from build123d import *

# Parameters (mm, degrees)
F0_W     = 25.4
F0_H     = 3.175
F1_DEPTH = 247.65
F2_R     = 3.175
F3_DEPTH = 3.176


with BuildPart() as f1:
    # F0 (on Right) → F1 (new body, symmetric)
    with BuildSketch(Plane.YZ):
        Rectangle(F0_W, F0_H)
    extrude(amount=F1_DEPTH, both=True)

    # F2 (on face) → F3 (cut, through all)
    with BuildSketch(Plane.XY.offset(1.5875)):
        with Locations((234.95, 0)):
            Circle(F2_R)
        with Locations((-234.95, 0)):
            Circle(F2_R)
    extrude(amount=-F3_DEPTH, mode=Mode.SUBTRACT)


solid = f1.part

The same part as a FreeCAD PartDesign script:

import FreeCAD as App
import Part
import Sketcher
from FreeCAD import Vector
Q = App.Units.Quantity

doc = App.newDocument("Part")
body = doc.addObject("PartDesign::Body", "Body")

# Sketch on YZ plane
sketch1 = doc.addObject("Sketcher::SketchObject", "Sketch")
body.addObject(sketch1)
sketch1.AttachmentSupport = (doc.YZ_Plane, [""])
sketch1.MapMode = "FlatFace"
sketch1.addGeometry([
    Part.LineSegment(Vector(-12.7, 1.6, 0), Vector(-12.7, -1.6, 0)),
    Part.LineSegment(Vector(-12.7, -1.6, 0), Vector(12.7, -1.6, 0)),
    Part.LineSegment(Vector(12.7, -1.6, 0), Vector(12.7, 1.6, 0)),
    Part.LineSegment(Vector(12.7, 1.6, 0), Vector(-12.7, 1.6, 0)),
], False)
sketch1.addConstraint([
    Sketcher.Constraint("Coincident", 0, 2, 1, 1),
    Sketcher.Constraint("Coincident", 1, 2, 2, 1),
    Sketcher.Constraint("Coincident", 2, 2, 3, 1),
    Sketcher.Constraint("Coincident", 3, 2, 0, 1),
    Sketcher.Constraint("Vertical", 0),
    Sketcher.Constraint("Horizontal", 1),
    Sketcher.Constraint("Vertical", 2),
    Sketcher.Constraint("Horizontal", 3),
    Sketcher.Constraint("Symmetric", 0, 2, 2, 2, -1, 1),
    Sketcher.Constraint("DistanceX", 1, 1, 1, 2, Q("1 in")),
    Sketcher.Constraint("DistanceY", 0, 2, 0, 1, Q("0.125 in")),
])
pad1 = doc.addObject("PartDesign::Pad", "Pad")
body.addObject(pad1)
pad1.Profile = sketch1
pad1.Length = Q("19.5 in")
pad1.Midplane = True

# Sketch on XY plane
sketch2 = doc.addObject("Sketcher::SketchObject", "Sketch001")
body.addObject(sketch2)
sketch2.AttachmentSupport = (doc.XY_Plane, [""])
sketch2.MapMode = "FlatFace"
sketch2.AttachmentOffset = App.Placement(Vector(0, 0, 0.0625 * 25.4), App.Rotation())
sketch2.addGeometry([
    Part.Circle(Vector(234.9, 0, 0), Vector(0, 0, 1), 3.2),
    Part.Circle(Vector(-234.9, 0, 0), Vector(0, 0, 1), 3.2),
], False)
sketch2.addConstraint([
    Sketcher.Constraint("Equal", 0, 1),
    Sketcher.Constraint("Symmetric", 0, 3, 1, 3, -1, 1),
    Sketcher.Constraint("PointOnObject", 0, 3, -1),
    Sketcher.Constraint("Diameter", 0, Q("0.25 in")),
    Sketcher.Constraint("DistanceX", 1, 3, 0, 3, Q("18.5 in")),
])
pocket1 = doc.addObject("PartDesign::Pocket", "Pocket")
body.addObject(pocket1)
pocket1.Profile = sketch2
pocket1.Type = "ThroughAll"

doc.recompute()
